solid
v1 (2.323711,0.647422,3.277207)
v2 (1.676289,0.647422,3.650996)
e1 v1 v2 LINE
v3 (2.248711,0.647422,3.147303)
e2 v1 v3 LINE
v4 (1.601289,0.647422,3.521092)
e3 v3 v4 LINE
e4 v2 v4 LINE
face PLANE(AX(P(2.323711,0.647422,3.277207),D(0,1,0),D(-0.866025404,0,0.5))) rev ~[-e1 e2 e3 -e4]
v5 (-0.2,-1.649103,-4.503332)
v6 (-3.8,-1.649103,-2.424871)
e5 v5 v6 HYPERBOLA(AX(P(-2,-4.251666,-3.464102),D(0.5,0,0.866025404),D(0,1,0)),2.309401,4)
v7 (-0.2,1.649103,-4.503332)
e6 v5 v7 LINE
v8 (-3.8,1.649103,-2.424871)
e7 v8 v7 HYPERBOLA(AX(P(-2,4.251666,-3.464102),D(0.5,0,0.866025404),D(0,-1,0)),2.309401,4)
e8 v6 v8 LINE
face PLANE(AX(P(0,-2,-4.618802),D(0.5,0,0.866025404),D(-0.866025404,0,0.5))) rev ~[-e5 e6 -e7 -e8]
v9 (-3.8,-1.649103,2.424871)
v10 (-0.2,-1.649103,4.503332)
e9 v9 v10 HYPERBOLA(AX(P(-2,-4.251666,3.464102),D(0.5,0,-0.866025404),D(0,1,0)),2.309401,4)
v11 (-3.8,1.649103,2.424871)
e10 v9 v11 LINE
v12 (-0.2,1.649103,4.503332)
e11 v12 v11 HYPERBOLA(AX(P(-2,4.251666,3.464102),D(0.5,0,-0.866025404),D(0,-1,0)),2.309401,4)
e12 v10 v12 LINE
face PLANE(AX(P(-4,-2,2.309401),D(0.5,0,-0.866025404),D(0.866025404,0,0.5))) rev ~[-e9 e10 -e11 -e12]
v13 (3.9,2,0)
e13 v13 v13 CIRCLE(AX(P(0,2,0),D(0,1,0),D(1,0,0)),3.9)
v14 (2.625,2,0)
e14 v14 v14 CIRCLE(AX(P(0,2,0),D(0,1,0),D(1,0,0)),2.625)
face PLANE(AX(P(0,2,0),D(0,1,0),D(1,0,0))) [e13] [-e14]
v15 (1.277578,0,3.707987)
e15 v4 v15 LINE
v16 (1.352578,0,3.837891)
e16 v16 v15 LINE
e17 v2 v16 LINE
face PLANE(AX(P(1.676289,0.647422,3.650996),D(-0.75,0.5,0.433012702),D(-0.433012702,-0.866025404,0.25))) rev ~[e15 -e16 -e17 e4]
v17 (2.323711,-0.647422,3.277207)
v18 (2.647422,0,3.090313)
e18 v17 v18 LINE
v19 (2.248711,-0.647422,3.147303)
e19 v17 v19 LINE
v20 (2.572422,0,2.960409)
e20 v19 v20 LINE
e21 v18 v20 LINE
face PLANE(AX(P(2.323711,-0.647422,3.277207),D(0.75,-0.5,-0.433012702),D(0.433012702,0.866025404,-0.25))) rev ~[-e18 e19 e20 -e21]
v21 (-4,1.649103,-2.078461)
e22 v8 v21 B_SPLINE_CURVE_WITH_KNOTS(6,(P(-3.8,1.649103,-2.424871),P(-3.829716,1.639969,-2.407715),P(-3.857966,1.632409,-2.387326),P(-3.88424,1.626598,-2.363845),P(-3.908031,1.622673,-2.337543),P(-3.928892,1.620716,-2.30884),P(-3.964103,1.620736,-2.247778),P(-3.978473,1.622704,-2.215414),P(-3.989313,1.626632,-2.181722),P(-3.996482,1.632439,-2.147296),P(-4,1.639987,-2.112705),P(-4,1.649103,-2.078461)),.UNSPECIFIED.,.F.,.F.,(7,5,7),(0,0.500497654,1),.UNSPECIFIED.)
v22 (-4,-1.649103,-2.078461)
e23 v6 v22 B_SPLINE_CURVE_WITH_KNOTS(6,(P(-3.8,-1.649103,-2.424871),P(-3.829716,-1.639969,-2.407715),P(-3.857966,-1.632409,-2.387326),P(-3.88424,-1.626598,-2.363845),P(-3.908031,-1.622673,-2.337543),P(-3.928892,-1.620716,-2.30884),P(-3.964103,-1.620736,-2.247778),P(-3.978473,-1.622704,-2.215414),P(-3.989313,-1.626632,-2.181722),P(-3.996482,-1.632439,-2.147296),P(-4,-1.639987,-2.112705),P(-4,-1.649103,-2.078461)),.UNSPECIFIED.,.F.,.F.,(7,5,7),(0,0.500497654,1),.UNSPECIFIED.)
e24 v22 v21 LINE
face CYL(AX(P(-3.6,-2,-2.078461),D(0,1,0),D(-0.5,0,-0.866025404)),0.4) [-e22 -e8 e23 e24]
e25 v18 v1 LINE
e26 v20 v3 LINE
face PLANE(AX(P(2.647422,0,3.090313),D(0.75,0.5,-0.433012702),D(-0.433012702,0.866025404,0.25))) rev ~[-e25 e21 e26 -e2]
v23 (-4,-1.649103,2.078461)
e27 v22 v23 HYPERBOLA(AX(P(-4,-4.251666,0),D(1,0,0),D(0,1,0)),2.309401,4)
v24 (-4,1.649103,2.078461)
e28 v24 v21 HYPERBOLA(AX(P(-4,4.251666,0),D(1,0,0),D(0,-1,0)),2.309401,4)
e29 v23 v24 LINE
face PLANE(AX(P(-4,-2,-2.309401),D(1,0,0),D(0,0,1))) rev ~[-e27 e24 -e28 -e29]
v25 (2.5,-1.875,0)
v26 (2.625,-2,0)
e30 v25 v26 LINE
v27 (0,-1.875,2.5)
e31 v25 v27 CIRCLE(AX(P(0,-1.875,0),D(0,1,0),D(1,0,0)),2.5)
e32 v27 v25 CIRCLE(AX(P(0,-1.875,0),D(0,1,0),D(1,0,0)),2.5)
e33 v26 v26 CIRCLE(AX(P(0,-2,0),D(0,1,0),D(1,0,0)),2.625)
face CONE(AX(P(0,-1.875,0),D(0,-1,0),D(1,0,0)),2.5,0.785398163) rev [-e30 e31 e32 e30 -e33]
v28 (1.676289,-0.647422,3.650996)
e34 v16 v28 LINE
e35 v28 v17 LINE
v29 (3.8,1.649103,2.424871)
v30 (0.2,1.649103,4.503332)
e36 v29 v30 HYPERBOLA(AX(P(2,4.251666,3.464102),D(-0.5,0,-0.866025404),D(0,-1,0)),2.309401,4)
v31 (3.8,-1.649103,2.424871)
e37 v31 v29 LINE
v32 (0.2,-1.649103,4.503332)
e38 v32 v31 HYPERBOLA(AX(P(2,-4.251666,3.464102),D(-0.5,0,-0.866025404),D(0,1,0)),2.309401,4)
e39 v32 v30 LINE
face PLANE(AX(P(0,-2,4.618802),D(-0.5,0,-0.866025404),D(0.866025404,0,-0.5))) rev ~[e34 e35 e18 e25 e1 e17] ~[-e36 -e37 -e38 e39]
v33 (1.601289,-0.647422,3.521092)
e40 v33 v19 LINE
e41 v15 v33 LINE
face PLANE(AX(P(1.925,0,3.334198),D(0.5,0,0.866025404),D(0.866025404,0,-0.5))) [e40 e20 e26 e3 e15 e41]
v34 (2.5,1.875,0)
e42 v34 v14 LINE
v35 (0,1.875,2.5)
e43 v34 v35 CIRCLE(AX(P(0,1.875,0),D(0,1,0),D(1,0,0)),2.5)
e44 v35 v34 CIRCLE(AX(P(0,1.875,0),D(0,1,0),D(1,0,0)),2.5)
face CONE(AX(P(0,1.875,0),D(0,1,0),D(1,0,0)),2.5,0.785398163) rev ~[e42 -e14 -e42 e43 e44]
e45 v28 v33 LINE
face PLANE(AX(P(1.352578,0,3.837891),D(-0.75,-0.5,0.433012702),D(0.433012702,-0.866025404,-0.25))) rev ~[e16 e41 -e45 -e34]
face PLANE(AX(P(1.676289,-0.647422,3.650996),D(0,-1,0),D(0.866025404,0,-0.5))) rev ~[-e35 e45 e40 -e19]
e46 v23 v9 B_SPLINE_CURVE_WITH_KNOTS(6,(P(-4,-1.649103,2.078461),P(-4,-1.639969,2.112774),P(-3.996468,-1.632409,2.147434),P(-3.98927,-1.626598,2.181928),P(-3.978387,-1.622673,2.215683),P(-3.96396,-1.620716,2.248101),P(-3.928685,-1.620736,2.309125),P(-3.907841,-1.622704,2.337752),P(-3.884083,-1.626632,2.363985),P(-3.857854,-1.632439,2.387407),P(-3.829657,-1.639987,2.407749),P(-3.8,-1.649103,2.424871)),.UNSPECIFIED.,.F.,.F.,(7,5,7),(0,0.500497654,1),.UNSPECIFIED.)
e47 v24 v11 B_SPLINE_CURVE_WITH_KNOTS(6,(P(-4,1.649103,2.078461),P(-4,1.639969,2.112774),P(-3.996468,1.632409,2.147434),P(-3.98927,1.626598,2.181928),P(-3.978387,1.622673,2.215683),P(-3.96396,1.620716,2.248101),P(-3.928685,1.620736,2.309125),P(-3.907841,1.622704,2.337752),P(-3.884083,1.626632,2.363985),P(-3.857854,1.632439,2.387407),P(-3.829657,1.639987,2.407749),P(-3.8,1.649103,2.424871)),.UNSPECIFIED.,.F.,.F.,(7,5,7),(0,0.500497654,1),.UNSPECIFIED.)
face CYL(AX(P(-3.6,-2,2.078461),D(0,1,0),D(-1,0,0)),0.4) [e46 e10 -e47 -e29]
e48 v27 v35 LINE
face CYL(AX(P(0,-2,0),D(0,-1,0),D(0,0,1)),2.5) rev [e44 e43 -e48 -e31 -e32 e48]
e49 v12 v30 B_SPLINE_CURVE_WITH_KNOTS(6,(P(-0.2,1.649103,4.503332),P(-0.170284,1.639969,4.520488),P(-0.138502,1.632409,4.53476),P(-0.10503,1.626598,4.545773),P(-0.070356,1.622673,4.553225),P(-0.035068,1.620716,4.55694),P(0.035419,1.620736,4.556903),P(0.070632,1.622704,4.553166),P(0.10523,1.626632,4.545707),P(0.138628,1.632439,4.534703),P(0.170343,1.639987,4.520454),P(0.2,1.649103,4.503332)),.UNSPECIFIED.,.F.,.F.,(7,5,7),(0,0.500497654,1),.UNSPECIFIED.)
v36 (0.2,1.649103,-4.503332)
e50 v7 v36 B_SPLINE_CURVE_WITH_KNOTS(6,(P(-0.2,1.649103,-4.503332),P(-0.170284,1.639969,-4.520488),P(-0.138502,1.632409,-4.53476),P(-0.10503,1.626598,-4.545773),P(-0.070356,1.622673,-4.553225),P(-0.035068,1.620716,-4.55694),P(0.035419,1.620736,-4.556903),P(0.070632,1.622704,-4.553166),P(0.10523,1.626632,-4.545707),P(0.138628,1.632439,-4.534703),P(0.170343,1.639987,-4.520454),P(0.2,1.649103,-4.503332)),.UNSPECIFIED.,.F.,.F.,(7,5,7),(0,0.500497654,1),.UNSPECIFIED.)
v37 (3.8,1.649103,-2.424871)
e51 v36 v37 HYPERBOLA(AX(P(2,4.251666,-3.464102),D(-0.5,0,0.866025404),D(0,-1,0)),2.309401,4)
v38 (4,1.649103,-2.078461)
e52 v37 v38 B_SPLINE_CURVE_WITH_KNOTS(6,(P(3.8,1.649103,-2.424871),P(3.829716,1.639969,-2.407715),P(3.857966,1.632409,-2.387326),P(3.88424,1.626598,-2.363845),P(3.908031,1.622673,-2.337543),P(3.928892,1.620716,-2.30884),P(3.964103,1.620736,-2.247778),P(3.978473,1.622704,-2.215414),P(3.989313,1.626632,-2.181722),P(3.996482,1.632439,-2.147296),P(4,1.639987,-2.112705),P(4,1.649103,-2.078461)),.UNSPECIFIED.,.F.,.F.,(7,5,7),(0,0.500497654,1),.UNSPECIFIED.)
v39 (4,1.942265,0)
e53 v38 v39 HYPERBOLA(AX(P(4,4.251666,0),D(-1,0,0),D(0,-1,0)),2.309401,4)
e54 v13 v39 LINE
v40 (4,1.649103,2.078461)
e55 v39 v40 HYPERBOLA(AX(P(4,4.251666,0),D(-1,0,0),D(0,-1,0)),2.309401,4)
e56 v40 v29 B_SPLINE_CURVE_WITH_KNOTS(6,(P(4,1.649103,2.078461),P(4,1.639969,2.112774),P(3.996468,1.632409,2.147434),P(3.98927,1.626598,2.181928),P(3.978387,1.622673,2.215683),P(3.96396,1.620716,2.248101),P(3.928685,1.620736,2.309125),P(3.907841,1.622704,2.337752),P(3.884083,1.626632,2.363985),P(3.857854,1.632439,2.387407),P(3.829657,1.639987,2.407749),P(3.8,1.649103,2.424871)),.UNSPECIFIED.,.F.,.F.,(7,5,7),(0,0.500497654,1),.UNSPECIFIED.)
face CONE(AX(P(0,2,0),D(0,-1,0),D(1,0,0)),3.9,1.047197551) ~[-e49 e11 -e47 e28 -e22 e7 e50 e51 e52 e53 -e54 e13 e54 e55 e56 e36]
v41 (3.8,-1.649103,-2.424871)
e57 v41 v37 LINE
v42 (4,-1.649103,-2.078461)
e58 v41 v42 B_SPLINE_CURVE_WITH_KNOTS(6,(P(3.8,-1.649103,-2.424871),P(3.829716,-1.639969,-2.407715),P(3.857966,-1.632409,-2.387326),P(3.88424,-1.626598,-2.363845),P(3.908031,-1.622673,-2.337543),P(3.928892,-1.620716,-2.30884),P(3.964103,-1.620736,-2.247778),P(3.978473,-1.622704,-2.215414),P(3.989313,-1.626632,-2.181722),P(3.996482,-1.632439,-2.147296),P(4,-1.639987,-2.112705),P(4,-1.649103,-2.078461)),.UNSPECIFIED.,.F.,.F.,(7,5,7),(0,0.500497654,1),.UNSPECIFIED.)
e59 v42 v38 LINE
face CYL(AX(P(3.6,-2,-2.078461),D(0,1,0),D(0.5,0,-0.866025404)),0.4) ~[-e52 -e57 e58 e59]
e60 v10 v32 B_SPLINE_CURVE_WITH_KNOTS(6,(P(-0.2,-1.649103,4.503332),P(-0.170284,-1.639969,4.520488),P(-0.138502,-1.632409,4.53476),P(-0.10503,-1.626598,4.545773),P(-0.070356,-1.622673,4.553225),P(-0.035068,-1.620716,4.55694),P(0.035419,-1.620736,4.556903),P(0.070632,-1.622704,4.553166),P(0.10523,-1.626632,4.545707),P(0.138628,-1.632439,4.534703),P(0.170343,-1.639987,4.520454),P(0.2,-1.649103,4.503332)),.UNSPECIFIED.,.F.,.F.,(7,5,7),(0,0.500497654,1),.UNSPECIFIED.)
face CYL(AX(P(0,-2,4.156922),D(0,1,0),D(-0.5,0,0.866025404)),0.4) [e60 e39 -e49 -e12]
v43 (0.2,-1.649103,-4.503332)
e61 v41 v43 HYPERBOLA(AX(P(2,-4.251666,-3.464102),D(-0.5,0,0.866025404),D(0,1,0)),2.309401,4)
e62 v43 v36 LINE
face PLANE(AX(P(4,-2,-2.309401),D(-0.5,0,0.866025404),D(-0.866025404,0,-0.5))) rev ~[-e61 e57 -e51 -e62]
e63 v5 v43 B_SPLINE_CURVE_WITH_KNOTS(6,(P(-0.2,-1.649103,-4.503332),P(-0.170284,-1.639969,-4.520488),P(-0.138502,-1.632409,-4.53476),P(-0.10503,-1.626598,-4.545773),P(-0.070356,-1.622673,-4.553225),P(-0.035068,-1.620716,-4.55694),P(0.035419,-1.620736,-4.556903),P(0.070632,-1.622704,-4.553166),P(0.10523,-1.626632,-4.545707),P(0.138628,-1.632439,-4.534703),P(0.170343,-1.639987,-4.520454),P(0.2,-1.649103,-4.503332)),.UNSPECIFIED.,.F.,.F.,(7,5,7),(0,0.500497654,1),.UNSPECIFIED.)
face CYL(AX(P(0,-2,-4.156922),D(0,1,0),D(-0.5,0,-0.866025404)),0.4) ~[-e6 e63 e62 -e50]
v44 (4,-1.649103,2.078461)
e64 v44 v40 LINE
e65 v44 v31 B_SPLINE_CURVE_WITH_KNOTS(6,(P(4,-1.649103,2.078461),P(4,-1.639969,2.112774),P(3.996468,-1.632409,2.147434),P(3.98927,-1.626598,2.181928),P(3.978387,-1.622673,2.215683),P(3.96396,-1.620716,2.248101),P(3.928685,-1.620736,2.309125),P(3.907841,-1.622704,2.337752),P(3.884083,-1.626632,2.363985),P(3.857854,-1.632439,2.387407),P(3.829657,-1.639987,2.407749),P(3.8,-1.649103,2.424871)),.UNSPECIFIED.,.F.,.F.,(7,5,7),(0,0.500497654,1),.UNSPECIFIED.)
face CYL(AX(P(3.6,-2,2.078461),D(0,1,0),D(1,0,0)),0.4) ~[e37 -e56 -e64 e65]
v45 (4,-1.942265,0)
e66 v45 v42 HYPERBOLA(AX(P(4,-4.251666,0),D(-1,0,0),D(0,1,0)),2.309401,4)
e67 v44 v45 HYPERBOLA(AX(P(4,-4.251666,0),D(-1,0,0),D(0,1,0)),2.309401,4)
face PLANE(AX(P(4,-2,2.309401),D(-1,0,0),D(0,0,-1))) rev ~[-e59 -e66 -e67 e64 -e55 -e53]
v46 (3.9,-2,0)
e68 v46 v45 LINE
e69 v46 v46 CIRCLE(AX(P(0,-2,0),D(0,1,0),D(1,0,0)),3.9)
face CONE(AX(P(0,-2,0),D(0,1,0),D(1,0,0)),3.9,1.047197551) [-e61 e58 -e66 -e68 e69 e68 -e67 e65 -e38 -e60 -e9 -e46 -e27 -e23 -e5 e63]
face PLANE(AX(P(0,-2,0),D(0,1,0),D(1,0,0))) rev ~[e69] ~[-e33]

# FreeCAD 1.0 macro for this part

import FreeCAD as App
import Part
import Sketcher

V = App.Vector
Q = App.Units.Quantity


def edges_at(feature, points):
    """Names of the edges that pass closest to the given points."""
    edges = feature.Shape.Edges
    near = lambda p: min(range(len(edges)), key=lambda i: edges[i].distToShape(Part.Vertex(*p))[0])
    return sorted({f"Edge{near(p) + 1}" for p in points})


def add_polygon(sketch, points):
    """Adds a closed chain of lines whose ends are joined by coincident constraints."""
    first, n = sketch.GeometryCount, len(points)
    for a, b in zip(points, points[1:] + points[:1]):
        sketch.addGeometry(Part.LineSegment(App.Vector(*a, 0), App.Vector(*b, 0)), False)
    for i in range(n):
        sketch.addConstraint(Sketcher.Constraint("Coincident", first + i, 2, first + (i + 1) % n, 1))

doc = App.newDocument("Part")
body = doc.addObject("PartDesign::Body", "Body")

# Sketch on XZ plane
sketch1 = body.newObject("Sketcher::SketchObject", "Sketch")
sketch1.AttachmentSupport = (doc.getObject("XZ_Plane"), [""])
sketch1.MapMode = "FlatFace"
add_polygon(sketch1, [(0, -4.618802), (-4, -2.309401), (-4, 2.309401), (0, 4.618802), (4, 2.309401), (4, -2.309401)])  # lines 0-5
sketch1.addGeometry(Part.Circle(V(0, 0, 0), V(0, 0, 1), 2.5), False)  # 6
sketch1.addConstraint([
    Sketcher.Constraint("Vertical", 1),
    Sketcher.Constraint("Vertical", 4),
    Sketcher.Constraint("Coincident", 6, 3, -1, 1),
    Sketcher.Constraint("Symmetric", 0, 2, 3, 2, -1, 1),
    Sketcher.Constraint("Symmetric", 2, 2, 5, 2, -1, 1),
    Sketcher.Constraint("PointOnObject", 2, 2, -2),
    Sketcher.Constraint("Parallel", 2, 5),
    Sketcher.Constraint("Horizontal", 1, 2, 3, 2),
    Sketcher.Constraint("Diameter", 6, Q("5 mm")),
    Sketcher.Constraint("Angle", 0, Q("150 deg")),
    Sketcher.Constraint("DistanceX", 0, 2, -1, 1, Q("4 mm")),
    Sketcher.Constraint("DistanceY", 0, 2, -1, 1, Q("2.309401 mm")),
])
pad1 = body.newObject("PartDesign::Pad", "Pad")
pad1.Profile = sketch1
pad1.Type = "TwoLengths"
pad1.Length = 2
pad1.Length2 = 2
pad1.Reversed = True
doc.recompute()

fillet = body.newObject("PartDesign::Fillet", "Fillet")
fillet.Base = (pad1, edges_at(pad1, [
    (4, 0, -2.309),
    (4, 0, 2.309),
    (0, 0, 4.619),
    (-4, 0, 2.309),
    (-4, 0, -2.309),
    (0, 0, -4.619),
]))
fillet.Radius = 0.4

# Sketch on YZ plane
sketch2 = body.newObject("Sketcher::SketchObject", "Sketch001")
sketch2.AttachmentSupport = (doc.getObject("YZ_Plane"), [""])
sketch2.MapMode = "FlatFace"
add_polygon(sketch2, [(-1.584999, -4.618802), (-2, -3.9), (-2, -4.618802)])  # lines 0-2
add_polygon(sketch2, [(2, -2.5), (1.875, -2.5), (2, -2.625)])  # lines 3-5
add_polygon(sketch2, [(-1.875, -2.5), (-2, -2.5), (-2, -2.625)])  # lines 6-8
add_polygon(sketch2, [(2, -3.9), (1.584999, -4.618802), (2, -4.618802)])  # lines 9-11
sketch2.addConstraint([
    Sketcher.Constraint("Vertical", 1),
    Sketcher.Constraint("Horizontal", 2),
    Sketcher.Constraint("Horizontal", 3),
    Sketcher.Constraint("Vertical", 5),
    Sketcher.Constraint("Horizontal", 6),
    Sketcher.Constraint("Vertical", 7),
    Sketcher.Constraint("Horizontal", 10),
    Sketcher.Constraint("Vertical", 11),
    Sketcher.Constraint("Symmetric", 5, 2, 6, 2, -2),
    Sketcher.Constraint("Symmetric", 2, 2, 9, 2, -2),
    Sketcher.Constraint("Symmetric", 0, 2, 11, 2, -2),
    Sketcher.Constraint("Perpendicular", 4, 8),
    Sketcher.Constraint("Horizontal", 4, 2, 7, 2),
    Sketcher.Constraint("Vertical", 1, 2, 6, 2),
    Sketcher.Constraint("Equal", 3, 6),
    Sketcher.Constraint("Angle", 0, Q("120 deg")),
    Sketcher.Constraint("DistanceX", 0, 2, -1, 1, Q("2 mm")),
    Sketcher.Constraint("DistanceY", 0, 2, -1, 1, Q("3.9 mm")),
    Sketcher.Constraint("DistanceY", 3, 2, -1, 1, Q("2.5 mm")),
    Sketcher.Constraint("Distance", 0, Q("0.830001 mm")),
    Sketcher.Constraint("DistanceX", 3, 2, 3, 1, Q("0.125 mm")),
])
groove = body.newObject("PartDesign::Groove", "Groove")
groove.Profile = sketch2
groove.ReferenceAxis = (sketch2, ["H_Axis"])
groove.Angle = 360

# Sketch on an angled plane
sketch3 = body.newObject("Sketcher::SketchObject", "Sketch002")
sketch3.Placement = App.Placement(V(2, 0, 3.464102), App.Rotation(V(0.866025404, 0, -0.5), V(0, 1, 0), V(0.5, 0, 0.866025404), "ZXY"))
add_polygon(sketch3, [(-0.747578, 0), (-0.373789, -0.647422), (0.373789, -0.647422), (0.747578, 0), (0.373789, 0.647422), (-0.373789, 0.647422)])  # lines 0-5
sketch3.addConstraint([
    Sketcher.Constraint("Horizontal", 1),
    Sketcher.Constraint("Horizontal", 4),
    Sketcher.Constraint("Symmetric", 0, 2, 3, 2, -1, 1),
    Sketcher.Constraint("Symmetric", 2, 2, 5, 2, -1, 1),
    Sketcher.Constraint("PointOnObject", 2, 2, -1),
    Sketcher.Constraint("Parallel", 2, 5),
    Sketcher.Constraint("Vertical", 1, 2, 3, 2),
    Sketcher.Constraint("Angle", 0, Q("-60 deg")),
    Sketcher.Constraint("DistanceX", 1, 1, 1, 2, Q("0.747578 mm")),
    Sketcher.Constraint("Distance", 0, Q("0.747578 mm")),
])
pocket1 = body.newObject("PartDesign::Pocket", "Pocket")
pocket1.Profile = sketch3
pocket1.Length = 0.15

doc.recompute()
